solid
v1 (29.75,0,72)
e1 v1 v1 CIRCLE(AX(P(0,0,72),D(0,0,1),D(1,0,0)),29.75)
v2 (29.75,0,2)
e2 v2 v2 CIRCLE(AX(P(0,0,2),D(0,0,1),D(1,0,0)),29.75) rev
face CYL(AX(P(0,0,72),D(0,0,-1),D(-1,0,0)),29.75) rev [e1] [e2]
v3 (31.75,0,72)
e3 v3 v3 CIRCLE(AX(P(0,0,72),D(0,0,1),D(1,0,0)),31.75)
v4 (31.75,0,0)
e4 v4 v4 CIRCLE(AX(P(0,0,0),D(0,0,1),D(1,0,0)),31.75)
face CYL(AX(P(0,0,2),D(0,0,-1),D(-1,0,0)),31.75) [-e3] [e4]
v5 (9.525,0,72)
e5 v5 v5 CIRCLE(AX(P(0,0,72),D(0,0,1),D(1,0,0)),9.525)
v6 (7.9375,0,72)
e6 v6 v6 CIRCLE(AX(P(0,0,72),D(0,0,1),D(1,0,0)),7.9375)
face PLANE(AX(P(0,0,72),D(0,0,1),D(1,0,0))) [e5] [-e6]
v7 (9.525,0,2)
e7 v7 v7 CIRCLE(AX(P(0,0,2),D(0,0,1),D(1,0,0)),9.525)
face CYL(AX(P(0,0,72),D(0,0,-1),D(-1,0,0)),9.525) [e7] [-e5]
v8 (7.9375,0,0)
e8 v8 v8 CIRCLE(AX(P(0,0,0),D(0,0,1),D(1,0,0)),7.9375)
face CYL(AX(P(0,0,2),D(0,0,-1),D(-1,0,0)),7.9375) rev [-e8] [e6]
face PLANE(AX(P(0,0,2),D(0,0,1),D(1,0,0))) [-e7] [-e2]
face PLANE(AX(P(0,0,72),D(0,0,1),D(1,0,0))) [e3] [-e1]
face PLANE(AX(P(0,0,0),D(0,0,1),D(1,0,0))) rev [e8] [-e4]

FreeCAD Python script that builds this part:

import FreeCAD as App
import Part
import Sketcher
from FreeCAD import Vector

doc = App.newDocument("Part")
body = doc.addObject("PartDesign::Body", "Body")

# Sketch on XY plane
sketch1 = body.newObject("Sketcher::SketchObject", "Sketch")
sketch1.AttachmentSupport = (doc.getObject("XY_Plane"), [""])
sketch1.MapMode = "FlatFace"
sketch1.addGeometry([
    Part.Circle(Vector(0, 0, 0), Vector(0, 0, 1), 32),
    Part.Circle(Vector(0, 0, 0), Vector(0, 0, 1), 8),
], False)
sketch1.addConstraint([
    Sketcher.Constraint("Coincident", 0, 3, -1, 1),
    Sketcher.Constraint("Coincident", 1, 3, -1, 1),
    Sketcher.Constraint("Diameter", 0, 63.5),
    Sketcher.Constraint("Diameter", 1, 15.875),
])
pad1 = body.newObject("PartDesign::Pad", "Pad")
pad1.Profile = sketch1
pad1.Length = 2

# Sketch on XY plane
sketch2 = body.newObject("Sketcher::SketchObject", "Sketch001")
sketch2.AttachmentSupport = (doc.getObject("XY_Plane"), [""])
sketch2.MapMode = "FlatFace"
sketch2.AttachmentOffset = App.Placement(Vector(0, 0, 2), App.Rotation())
sketch2.addGeometry([
    Part.Circle(Vector(0, 0, 0), Vector(0, 0, 1), 32),
    Part.Circle(Vector(0, 0, 0), Vector(0, 0, 1), 30),
], False)
sketch2.addConstraint([
    Sketcher.Constraint("Coincident", 0, 3, -1, 1),
    Sketcher.Constraint("Coincident", 1, 3, -1, 1),
    Sketcher.Constraint("Diameter", 0, 63.5),
    Sketcher.Constraint("Diameter", 1, 59.5),
])
pad2 = body.newObject("PartDesign::Pad", "Pad001")
pad2.Profile = sketch2
pad2.Length = 70

# Sketch on XY plane
sketch3 = body.newObject("Sketcher::SketchObject", "Sketch002")
sketch3.AttachmentSupport = (doc.getObject("XY_Plane"), [""])
sketch3.MapMode = "FlatFace"
sketch3.AttachmentOffset = App.Placement(Vector(0, 0, 2), App.Rotation())
sketch3.addGeometry([
    Part.Circle(Vector(0, 0, 0), Vector(0, 0, 1), 10),
    Part.Circle(Vector(0, 0, 0), Vector(0, 0, 1), 8),
], False)
sketch3.addConstraint([
    Sketcher.Constraint("Coincident", 0, 3, -1, 1),
    Sketcher.Constraint("Coincident", 1, 3, -1, 1),
    Sketcher.Constraint("Diameter", 0, 19.05),
    Sketcher.Constraint("Diameter", 1, 15.875),
])
pad3 = body.newObject("PartDesign::Pad", "Pad002")
pad3.Profile = sketch3
pad3.Length = 70

doc.recompute()
